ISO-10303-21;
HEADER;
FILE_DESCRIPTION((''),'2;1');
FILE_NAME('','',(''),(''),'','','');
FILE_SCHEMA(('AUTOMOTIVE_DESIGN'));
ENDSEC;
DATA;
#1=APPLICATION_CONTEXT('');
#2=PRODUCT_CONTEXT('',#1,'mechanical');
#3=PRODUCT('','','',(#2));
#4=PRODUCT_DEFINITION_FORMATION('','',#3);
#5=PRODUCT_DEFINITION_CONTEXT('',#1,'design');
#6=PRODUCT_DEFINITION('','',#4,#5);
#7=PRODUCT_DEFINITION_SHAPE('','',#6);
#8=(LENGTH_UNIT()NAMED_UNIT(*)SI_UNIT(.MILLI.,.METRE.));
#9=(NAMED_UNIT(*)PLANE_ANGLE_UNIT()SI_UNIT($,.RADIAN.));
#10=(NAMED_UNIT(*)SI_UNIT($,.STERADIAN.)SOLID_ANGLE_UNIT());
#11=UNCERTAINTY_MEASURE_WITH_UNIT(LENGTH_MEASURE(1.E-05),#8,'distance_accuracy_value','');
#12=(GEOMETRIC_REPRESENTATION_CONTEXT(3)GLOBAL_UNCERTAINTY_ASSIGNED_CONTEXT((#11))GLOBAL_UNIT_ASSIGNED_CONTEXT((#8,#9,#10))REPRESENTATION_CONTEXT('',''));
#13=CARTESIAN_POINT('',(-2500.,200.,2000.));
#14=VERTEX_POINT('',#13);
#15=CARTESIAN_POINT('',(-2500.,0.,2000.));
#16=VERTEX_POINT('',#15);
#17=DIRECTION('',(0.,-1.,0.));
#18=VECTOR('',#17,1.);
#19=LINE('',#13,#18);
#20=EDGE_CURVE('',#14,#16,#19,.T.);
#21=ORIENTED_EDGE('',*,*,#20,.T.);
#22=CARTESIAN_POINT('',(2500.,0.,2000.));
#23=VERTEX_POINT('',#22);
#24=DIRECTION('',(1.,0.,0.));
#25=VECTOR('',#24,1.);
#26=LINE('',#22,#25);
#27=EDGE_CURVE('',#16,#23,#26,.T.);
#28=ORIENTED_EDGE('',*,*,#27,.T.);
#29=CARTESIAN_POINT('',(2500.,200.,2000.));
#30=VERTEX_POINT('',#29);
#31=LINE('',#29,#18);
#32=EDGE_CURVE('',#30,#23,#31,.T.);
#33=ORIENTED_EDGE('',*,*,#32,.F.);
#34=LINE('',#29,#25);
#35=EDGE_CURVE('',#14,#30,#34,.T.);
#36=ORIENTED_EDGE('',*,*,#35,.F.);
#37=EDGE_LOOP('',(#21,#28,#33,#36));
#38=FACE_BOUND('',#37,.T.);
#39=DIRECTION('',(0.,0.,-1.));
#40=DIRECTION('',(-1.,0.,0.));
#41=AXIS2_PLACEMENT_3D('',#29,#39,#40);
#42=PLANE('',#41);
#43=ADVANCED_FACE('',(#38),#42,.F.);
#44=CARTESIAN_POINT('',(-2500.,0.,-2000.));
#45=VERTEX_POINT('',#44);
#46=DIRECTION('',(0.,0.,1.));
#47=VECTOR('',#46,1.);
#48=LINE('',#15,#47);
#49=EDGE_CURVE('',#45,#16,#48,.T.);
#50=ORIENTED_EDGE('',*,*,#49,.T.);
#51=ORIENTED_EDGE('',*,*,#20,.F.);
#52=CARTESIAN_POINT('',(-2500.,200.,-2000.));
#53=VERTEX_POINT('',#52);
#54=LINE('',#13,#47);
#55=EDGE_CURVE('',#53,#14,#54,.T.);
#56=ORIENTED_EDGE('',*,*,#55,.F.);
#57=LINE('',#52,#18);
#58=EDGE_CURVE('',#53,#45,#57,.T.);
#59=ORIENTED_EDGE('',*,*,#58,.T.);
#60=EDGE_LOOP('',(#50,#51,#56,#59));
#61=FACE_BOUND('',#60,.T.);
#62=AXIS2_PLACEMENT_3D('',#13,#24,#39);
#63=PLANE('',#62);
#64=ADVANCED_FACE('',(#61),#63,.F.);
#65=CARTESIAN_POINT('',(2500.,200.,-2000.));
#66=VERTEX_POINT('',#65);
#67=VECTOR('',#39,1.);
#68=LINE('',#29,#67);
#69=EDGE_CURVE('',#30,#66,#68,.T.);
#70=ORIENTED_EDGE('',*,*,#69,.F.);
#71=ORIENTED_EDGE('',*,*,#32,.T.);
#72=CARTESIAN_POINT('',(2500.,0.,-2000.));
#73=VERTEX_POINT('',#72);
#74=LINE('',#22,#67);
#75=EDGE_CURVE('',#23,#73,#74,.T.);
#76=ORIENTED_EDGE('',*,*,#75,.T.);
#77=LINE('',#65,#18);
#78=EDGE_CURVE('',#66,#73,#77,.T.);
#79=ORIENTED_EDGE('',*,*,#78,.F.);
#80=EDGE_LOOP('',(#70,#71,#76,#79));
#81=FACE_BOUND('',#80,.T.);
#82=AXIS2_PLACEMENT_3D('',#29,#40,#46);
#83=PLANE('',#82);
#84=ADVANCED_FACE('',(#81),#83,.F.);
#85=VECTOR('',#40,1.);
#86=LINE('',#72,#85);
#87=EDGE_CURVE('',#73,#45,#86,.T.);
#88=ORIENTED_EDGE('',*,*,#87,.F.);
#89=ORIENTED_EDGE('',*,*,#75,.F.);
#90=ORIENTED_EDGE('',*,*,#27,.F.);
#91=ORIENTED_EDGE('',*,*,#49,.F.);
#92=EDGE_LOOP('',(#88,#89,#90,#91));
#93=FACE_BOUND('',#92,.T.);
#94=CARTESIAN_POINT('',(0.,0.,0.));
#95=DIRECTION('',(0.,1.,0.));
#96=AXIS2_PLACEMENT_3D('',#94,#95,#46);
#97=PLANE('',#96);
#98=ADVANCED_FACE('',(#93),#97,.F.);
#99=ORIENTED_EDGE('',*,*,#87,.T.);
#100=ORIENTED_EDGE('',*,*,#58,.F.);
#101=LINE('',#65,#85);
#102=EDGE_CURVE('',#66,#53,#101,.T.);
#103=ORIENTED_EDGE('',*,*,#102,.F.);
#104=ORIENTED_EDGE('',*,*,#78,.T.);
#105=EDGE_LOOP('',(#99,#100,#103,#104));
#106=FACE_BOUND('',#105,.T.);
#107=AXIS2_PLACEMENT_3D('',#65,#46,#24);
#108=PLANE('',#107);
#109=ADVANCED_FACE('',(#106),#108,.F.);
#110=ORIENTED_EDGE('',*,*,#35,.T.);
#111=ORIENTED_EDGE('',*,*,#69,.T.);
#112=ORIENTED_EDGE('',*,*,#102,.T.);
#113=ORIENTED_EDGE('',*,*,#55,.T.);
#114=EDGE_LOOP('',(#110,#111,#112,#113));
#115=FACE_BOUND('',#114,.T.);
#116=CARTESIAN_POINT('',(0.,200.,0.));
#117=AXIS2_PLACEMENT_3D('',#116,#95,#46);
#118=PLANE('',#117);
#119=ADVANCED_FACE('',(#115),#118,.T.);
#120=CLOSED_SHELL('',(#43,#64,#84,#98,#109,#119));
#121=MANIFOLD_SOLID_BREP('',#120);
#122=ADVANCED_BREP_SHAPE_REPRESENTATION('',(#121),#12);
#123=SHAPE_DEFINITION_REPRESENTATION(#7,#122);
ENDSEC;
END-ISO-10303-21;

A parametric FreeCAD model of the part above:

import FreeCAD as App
import Part
import Sketcher

V = App.Vector


def add_polygon(sketch, points):
    """Adds a closed chain of lines whose ends are joined by coincident constraints."""
    first, n = sketch.GeometryCount, len(points)
    for a, b in zip(points, points[1:] + points[:1]):
        sketch.addGeometry(Part.LineSegment(App.Vector(*a, 0), App.Vector(*b, 0)), False)
    for i in range(n):
        sketch.addConstraint(Sketcher.Constraint("Coincident", first + i, 2, first + (i + 1) % n, 1))

doc = App.newDocument("Part")
body = doc.addObject("PartDesign::Body", "Body")

sketch1 = body.newObject("Sketcher::SketchObject", "Sketch")
sketch1.AttachmentSupport = (doc.getObject("XZ_Plane"), [""])
sketch1.MapMode = "FlatFace"
add_polygon(sketch1, [(-2500, -2000), (-2500, 2000), (2500, 2000), (2500, -2000)])
sketch1.addConstraint([
    Sketcher.Constraint("Vertical", 0),
    Sketcher.Constraint("Horizontal", 1),
    Sketcher.Constraint("Vertical", 2),
    Sketcher.Constraint("Horizontal", 3),
    Sketcher.Constraint("Symmetric", 0, 2, 2, 2, -1, 1),
    Sketcher.Constraint("DistanceX", 1, 1, 1, 2, 5000.0),
    Sketcher.Constraint("DistanceY", 0, 1, 0, 2, 4000.0),
])
pad1 = body.newObject("PartDesign::Pad", "Pad")
pad1.Profile = sketch1
pad1.Length = 200
pad1.Reversed = True

doc.recompute()
